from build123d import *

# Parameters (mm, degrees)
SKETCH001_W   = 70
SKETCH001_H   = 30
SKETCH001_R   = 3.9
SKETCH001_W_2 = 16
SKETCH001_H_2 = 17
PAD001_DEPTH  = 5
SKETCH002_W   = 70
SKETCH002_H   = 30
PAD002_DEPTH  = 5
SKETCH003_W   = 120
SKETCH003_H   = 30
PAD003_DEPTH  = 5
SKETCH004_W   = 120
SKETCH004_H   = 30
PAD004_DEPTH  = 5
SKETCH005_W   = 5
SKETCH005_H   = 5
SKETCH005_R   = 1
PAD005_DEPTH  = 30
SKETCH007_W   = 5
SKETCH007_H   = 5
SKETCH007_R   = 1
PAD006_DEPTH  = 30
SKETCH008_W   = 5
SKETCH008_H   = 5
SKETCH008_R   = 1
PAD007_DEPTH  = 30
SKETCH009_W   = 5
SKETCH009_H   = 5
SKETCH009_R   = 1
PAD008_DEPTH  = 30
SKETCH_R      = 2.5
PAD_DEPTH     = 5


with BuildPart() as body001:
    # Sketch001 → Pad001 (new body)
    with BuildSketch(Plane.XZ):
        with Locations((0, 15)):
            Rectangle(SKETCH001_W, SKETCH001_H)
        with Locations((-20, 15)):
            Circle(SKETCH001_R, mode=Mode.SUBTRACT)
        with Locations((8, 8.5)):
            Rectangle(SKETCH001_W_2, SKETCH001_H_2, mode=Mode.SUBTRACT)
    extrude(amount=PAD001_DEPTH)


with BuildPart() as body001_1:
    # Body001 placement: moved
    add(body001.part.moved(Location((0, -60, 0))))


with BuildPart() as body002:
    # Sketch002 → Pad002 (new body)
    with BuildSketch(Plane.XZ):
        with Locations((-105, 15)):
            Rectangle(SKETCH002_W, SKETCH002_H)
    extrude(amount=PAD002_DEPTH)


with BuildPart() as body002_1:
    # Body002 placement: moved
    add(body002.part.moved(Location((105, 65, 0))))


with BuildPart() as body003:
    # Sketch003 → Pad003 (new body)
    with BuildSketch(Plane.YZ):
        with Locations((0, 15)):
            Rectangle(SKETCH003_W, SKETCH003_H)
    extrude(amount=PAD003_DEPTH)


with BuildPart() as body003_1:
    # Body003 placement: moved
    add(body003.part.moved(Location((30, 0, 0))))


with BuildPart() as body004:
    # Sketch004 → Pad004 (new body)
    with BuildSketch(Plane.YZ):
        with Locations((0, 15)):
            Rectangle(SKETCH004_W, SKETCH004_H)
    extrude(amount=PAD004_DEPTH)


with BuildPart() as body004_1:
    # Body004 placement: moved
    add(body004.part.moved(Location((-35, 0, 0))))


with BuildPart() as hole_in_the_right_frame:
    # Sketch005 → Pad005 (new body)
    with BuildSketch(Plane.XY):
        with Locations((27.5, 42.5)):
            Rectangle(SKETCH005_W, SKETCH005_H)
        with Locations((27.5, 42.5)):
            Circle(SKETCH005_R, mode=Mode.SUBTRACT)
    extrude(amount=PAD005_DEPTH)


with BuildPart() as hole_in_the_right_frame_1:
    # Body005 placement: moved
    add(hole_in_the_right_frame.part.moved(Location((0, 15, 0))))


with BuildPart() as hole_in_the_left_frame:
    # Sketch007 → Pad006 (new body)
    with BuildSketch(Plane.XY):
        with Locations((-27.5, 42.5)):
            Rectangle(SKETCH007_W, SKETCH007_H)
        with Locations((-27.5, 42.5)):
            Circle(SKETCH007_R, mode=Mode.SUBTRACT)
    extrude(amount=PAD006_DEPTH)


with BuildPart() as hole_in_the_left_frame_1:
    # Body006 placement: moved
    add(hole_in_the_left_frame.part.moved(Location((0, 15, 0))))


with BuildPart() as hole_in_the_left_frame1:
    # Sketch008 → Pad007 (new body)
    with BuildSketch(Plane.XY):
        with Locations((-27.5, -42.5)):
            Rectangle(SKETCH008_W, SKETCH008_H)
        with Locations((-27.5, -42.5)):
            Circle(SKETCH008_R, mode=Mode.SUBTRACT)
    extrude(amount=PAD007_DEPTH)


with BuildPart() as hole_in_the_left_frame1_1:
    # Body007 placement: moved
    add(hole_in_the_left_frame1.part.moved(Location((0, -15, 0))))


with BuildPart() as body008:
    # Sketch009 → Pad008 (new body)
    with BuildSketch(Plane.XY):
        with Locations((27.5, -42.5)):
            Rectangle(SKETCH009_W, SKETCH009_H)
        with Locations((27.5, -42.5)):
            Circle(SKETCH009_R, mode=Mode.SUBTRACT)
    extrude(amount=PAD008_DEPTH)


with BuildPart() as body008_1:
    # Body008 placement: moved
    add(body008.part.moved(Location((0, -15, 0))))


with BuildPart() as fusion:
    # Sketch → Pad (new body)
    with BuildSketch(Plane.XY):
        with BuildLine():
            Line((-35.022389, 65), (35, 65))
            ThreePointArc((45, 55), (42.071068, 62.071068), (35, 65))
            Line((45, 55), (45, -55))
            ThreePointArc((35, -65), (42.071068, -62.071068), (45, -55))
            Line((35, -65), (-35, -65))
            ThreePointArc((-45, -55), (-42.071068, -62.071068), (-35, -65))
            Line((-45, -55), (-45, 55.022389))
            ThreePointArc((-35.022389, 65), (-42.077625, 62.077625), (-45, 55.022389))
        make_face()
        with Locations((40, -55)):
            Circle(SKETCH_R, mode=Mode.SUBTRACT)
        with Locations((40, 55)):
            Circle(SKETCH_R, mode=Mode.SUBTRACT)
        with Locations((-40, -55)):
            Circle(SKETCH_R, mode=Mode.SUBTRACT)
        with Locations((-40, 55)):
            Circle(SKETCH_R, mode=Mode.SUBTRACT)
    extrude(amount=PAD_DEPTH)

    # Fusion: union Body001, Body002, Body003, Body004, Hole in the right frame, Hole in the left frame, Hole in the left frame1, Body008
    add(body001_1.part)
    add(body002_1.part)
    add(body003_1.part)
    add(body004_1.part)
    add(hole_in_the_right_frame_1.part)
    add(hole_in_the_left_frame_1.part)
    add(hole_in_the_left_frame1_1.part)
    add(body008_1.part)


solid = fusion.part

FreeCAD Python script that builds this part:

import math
import FreeCAD as App
import Part
import Sketcher
from FreeCAD import Vector
Q = App.Units.Quantity

doc = App.newDocument("Part")
body = doc.addObject("PartDesign::Body", "Body")

# Sketch on XZ plane
sketch1 = doc.addObject("Sketcher::SketchObject", "Sketch")
body.addObject(sketch1)
sketch1.AttachmentSupport = (doc.XZ_Plane, [""])
sketch1.MapMode = "FlatFace"
sketch1.addGeometry([
    Part.LineSegment(Vector(-35, 30, 0), Vector(-35, 0, 0)),  # 0
    Part.LineSegment(Vector(-35, 0, 0), Vector(0, 0, 0)),  # 1
    Part.LineSegment(Vector(0, 0, 0), Vector(0, 17, 0)),  # 2
    Part.LineSegment(Vector(0, 17, 0), Vector(16, 17, 0)),  # 3
    Part.LineSegment(Vector(16, 17, 0), Vector(16, 0, 0)),  # 4
    Part.LineSegment(Vector(16, 0, 0), Vector(35, 0, 0)),  # 5
    Part.LineSegment(Vector(35, 0, 0), Vector(35, 30, 0)),  # 6
    Part.LineSegment(Vector(35, 30, 0), Vector(-35, 30, 0)),  # 7
    Part.Circle(Vector(-20, 15, 0), Vector(0, 0, 1), 3.9),  # 8
], False)
sketch1.addConstraint([
    Sketcher.Constraint("Coincident", 0, 2, 1, 1),
    Sketcher.Constraint("Coincident", 1, 2, 2, 1),
    Sketcher.Constraint("Coincident", 2, 2, 3, 1),
    Sketcher.Constraint("Coincident", 3, 2, 4, 1),
    Sketcher.Constraint("Coincident", 4, 2, 5, 1),
    Sketcher.Constraint("Coincident", 5, 2, 6, 1),
    Sketcher.Constraint("Coincident", 6, 2, 7, 1),
    Sketcher.Constraint("Coincident", 7, 2, 0, 1),
    Sketcher.Constraint("Vertical", 0),
    Sketcher.Constraint("Horizontal", 1),
    Sketcher.Constraint("Vertical", 2),
    Sketcher.Constraint("Horizontal", 3),
    Sketcher.Constraint("Vertical", 4),
    Sketcher.Constraint("Horizontal", 5),
    Sketcher.Constraint("Vertical", 6),
    Sketcher.Constraint("Horizontal", 7),
    Sketcher.Constraint("Coincident", 1, 2, -1, 1),
    Sketcher.Constraint("Symmetric", 0, 2, 5, 2, -1, 1),
    Sketcher.Constraint("Diameter", 8, Q("7.8 mm")),
    Sketcher.Constraint("DistanceX", 1, 1, 1, 2, Q("35 mm")),
    Sketcher.Constraint("DistanceX", 3, 1, 3, 2, Q("16 mm")),
    Sketcher.Constraint("DistanceY", 0, 2, 0, 1, Q("30 mm")),
    Sketcher.Constraint("DistanceY", 2, 1, 2, 2, Q("17 mm")),
    Sketcher.Constraint("DistanceX", 8, 3, -1, 1, Q("20 mm")),
    Sketcher.Constraint("DistanceY", -1, 1, 8, 3, Q("15 mm")),
])
pad1 = doc.addObject("PartDesign::Pad", "Pad")
body.addObject(pad1)
pad1.Profile = sketch1
pad1.Length = 5
body2 = doc.addObject("PartDesign::Body", "Body001")
doc.recompute()

body.Placement = App.Placement(Vector(0, -60, 0), App.Rotation(Vector(0, 0, 1), 0))
boolean = doc.addObject("PartDesign::Boolean", "Boolean")
body2.addObject(boolean)
boolean.Type = "Fuse"
boolean.addObjects([body])
body3 = doc.addObject("PartDesign::Body", "Body002")

# Sketch on XZ plane
sketch2 = doc.addObject("Sketcher::SketchObject", "Sketch001")
body3.addObject(sketch2)
sketch2.AttachmentSupport = (doc.getObject("XZ_Plane002"), [""])
sketch2.MapMode = "FlatFace"
sketch2.addGeometry([
    Part.LineSegment(Vector(-140, 30, 0), Vector(-140, 0, 0)),
    Part.LineSegment(Vector(-140, 0, 0), Vector(-70, 0, 0)),
    Part.LineSegment(Vector(-70, 0, 0), Vector(-70, 30, 0)),
    Part.LineSegment(Vector(-70, 30, 0), Vector(-140, 30, 0)),
], False)
sketch2.addConstraint([
    Sketcher.Constraint("Coincident", 0, 2, 1, 1),
    Sketcher.Constraint("Coincident", 1, 2, 2, 1),
    Sketcher.Constraint("Coincident", 2, 2, 3, 1),
    Sketcher.Constraint("Coincident", 3, 2, 0, 1),
    Sketcher.Constraint("Vertical", 0),
    Sketcher.Constraint("Horizontal", 1),
    Sketcher.Constraint("Vertical", 2),
    Sketcher.Constraint("Horizontal", 3),
    Sketcher.Constraint("PointOnObject", 0, 2, -1),
    Sketcher.Constraint("DistanceX", 1, 1, 1, 2, Q("70 mm")),
    Sketcher.Constraint("DistanceY", 0, 2, 0, 1, Q("30 mm")),
    Sketcher.Constraint("DistanceX", 0, 2, -1, 1, Q("140 mm")),
])
pad2 = doc.addObject("PartDesign::Pad", "Pad001")
body3.addObject(pad2)
pad2.Profile = sketch2
pad2.Length = 5
body4 = doc.addObject("PartDesign::Body", "Body003")
doc.recompute()

body3.Placement = App.Placement(Vector(105, 65, 0), App.Rotation(Vector(0, 0, 1), 0))
boolean2 = doc.addObject("PartDesign::Boolean", "Boolean001")
body4.addObject(boolean2)
boolean2.Type = "Fuse"
boolean2.addObjects([body3])
body5 = doc.addObject("PartDesign::Body", "Body004")

# Sketch on YZ plane
sketch3 = doc.addObject("Sketcher::SketchObject", "Sketch002")
body5.addObject(sketch3)
sketch3.AttachmentSupport = (doc.getObject("YZ_Plane004"), [""])
sketch3.MapMode = "FlatFace"
sketch3.addGeometry([
    Part.LineSegment(Vector(-60, 30, 0), Vector(-60, 0, 0)),
    Part.LineSegment(Vector(-60, 0, 0), Vector(60, 0, 0)),
    Part.LineSegment(Vector(60, 0, 0), Vector(60, 30, 0)),
    Part.LineSegment(Vector(60, 30, 0), Vector(-60, 30, 0)),
], False)
sketch3.addConstraint([
    Sketcher.Constraint("Coincident", 0, 2, 1, 1),
    Sketcher.Constraint("Coincident", 1, 2, 2, 1),
    Sketcher.Constraint("Coincident", 2, 2, 3, 1),
    Sketcher.Constraint("Coincident", 3, 2, 0, 1),
    Sketcher.Constraint("Vertical", 0),
    Sketcher.Constraint("Horizontal", 1),
    Sketcher.Constraint("Vertical", 2),
    Sketcher.Constraint("Horizontal", 3),
    Sketcher.Constraint("Symmetric", 0, 2, 1, 2, -1, 1),
    Sketcher.Constraint("DistanceX", 1, 1, 1, 2, Q("120 mm")),
    Sketcher.Constraint("DistanceY", 0, 2, 0, 1, Q("30 mm")),
])
pad3 = doc.addObject("PartDesign::Pad", "Pad002")
body5.addObject(pad3)
pad3.Profile = sketch3
pad3.Length = 5
body6 = doc.addObject("PartDesign::Body", "Body005")
doc.recompute()

body5.Placement = App.Placement(Vector(30, 0, 0), App.Rotation(Vector(0, 0, 1), 0))
boolean3 = doc.addObject("PartDesign::Boolean", "Boolean002")
body6.addObject(boolean3)
boolean3.Type = "Fuse"
boolean3.addObjects([body5])
body7 = doc.addObject("PartDesign::Body", "Body006")

# Sketch on YZ plane
sketch4 = doc.addObject("Sketcher::SketchObject", "Sketch003")
body7.addObject(sketch4)
sketch4.AttachmentSupport = (doc.getObject("YZ_Plane006"), [""])
sketch4.MapMode = "FlatFace"
sketch4.addGeometry([
    Part.LineSegment(Vector(-60, 30, 0), Vector(-60, 0, 0)),
    Part.LineSegment(Vector(-60, 0, 0), Vector(60, 0, 0)),
    Part.LineSegment(Vector(60, 0, 0), Vector(60, 30, 0)),
    Part.LineSegment(Vector(60, 30, 0), Vector(-60, 30, 0)),
], False)
sketch4.addConstraint([
    Sketcher.Constraint("Coincident", 0, 2, 1, 1),
    Sketcher.Constraint("Coincident", 1, 2, 2, 1),
    Sketcher.Constraint("Coincident", 2, 2, 3, 1),
    Sketcher.Constraint("Coincident", 3, 2, 0, 1),
    Sketcher.Constraint("Vertical", 0),
    Sketcher.Constraint("Horizontal", 1),
    Sketcher.Constraint("Vertical", 2),
    Sketcher.Constraint("Horizontal", 3),
    Sketcher.Constraint("Symmetric", 0, 2, 1, 2, -1, 1),
    Sketcher.Constraint("DistanceX", 1, 1, 1, 2, Q("120 mm")),
    Sketcher.Constraint("DistanceY", 0, 2, 0, 1, Q("30 mm")),
])
pad4 = doc.addObject("PartDesign::Pad", "Pad003")
body7.addObject(pad4)
pad4.Profile = sketch4
pad4.Length = 5
body8 = doc.addObject("PartDesign::Body", "Body007")
doc.recompute()

body7.Placement = App.Placement(Vector(-35, 0, 0), App.Rotation(Vector(0, 0, 1), 0))
boolean4 = doc.addObject("PartDesign::Boolean", "Boolean003")
body8.addObject(boolean4)
boolean4.Type = "Fuse"
boolean4.addObjects([body7])
body9 = doc.addObject("PartDesign::Body", "Body008")

# Sketch on XY plane
sketch5 = doc.addObject("Sketcher::SketchObject", "Sketch004")
body9.addObject(sketch5)
sketch5.AttachmentSupport = (doc.getObject("XY_Plane008"), [""])
sketch5.MapMode = "FlatFace"
sketch5.addGeometry([
    Part.LineSegment(Vector(25, 45, 0), Vector(25, 40, 0)),  # 0
    Part.LineSegment(Vector(25, 40, 0), Vector(30, 40, 0)),  # 1
    Part.LineSegment(Vector(30, 40, 0), Vector(30, 45, 0)),  # 2
    Part.LineSegment(Vector(30, 45, 0), Vector(25, 45, 0)),  # 3
    Part.Circle(Vector(27.5, 42.5, 0), Vector(0, 0, 1), 1),  # 4
], False)
sketch5.addConstraint([
    Sketcher.Constraint("Coincident", 0, 2, 1, 1),
    Sketcher.Constraint("Coincident", 1, 2, 2, 1),
    Sketcher.Constraint("Coincident", 2, 2, 3, 1),
    Sketcher.Constraint("Coincident", 3, 2, 0, 1),
    Sketcher.Constraint("Vertical", 0),
    Sketcher.Constraint("Horizontal", 1),
    Sketcher.Constraint("Vertical", 2),
    Sketcher.Constraint("Horizontal", 3),
    Sketcher.Constraint("Equal", 3, 0),
    Sketcher.Constraint("Diameter", 4, Q("2 mm")),
    Sketcher.Constraint("DistanceX", 1, 1, 1, 2, Q("5 mm")),
    Sketcher.Constraint("DistanceX", -1, 1, 0, 2, Q("25 mm")),
    Sketcher.Constraint("DistanceY", -1, 1, 0, 2, Q("40 mm")),
    Sketcher.Constraint("DistanceX", -1, 1, 4, 3, Q("27.5 mm")),
    Sketcher.Constraint("DistanceY", -1, 1, 4, 3, Q("42.5 mm")),
])
pad5 = doc.addObject("PartDesign::Pad", "Pad004")
body9.addObject(pad5)
pad5.Profile = sketch5
pad5.Length = 30
body10 = doc.addObject("PartDesign::Body", "Body009")
doc.recompute()

body9.Placement = App.Placement(Vector(0, 15, 0), App.Rotation(Vector(0, 0, 1), 0))
boolean5 = doc.addObject("PartDesign::Boolean", "Boolean004")
body10.addObject(boolean5)
boolean5.Type = "Fuse"
boolean5.addObjects([body9])
body11 = doc.addObject("PartDesign::Body", "Body010")

# Sketch on XY plane
sketch6 = doc.addObject("Sketcher::SketchObject", "Sketch005")
body11.addObject(sketch6)
sketch6.AttachmentSupport = (doc.getObject("XY_Plane010"), [""])
sketch6.MapMode = "FlatFace"
sketch6.addGeometry([
    Part.LineSegment(Vector(-30, 45, 0), Vector(-30, 40, 0)),  # 0
    Part.LineSegment(Vector(-30, 40, 0), Vector(-25, 40, 0)),  # 1
    Part.LineSegment(Vector(-25, 40, 0), Vector(-25, 45, 0)),  # 2
    Part.LineSegment(Vector(-25, 45, 0), Vector(-30, 45, 0)),  # 3
    Part.Circle(Vector(-27.5, 42.5, 0), Vector(0, 0, 1), 1),  # 4
], False)
sketch6.addConstraint([
    Sketcher.Constraint("Coincident", 0, 2, 1, 1),
    Sketcher.Constraint("Coincident", 1, 2, 2, 1),
    Sketcher.Constraint("Coincident", 2, 2, 3, 1),
    Sketcher.Constraint("Coincident", 3, 2, 0, 1),
    Sketcher.Constraint("Vertical", 0),
    Sketcher.Constraint("Horizontal", 1),
    Sketcher.Constraint("Vertical", 2),
    Sketcher.Constraint("Horizontal", 3),
    Sketcher.Constraint("Equal", 3, 0),
    Sketcher.Constraint("Diameter", 4, Q("2 mm")),
    Sketcher.Constraint("DistanceX", 1, 1, 1, 2, Q("5 mm")),
    Sketcher.Constraint("DistanceX", 0, 2, -1, 1, Q("30 mm")),
    Sketcher.Constraint("DistanceY", -1, 1, 0, 2, Q("40 mm")),
    Sketcher.Constraint("DistanceX", 4, 3, -1, 1, Q("27.5 mm")),
    Sketcher.Constraint("DistanceY", -1, 1, 4, 3, Q("42.5 mm")),
])
pad6 = doc.addObject("PartDesign::Pad", "Pad005")
body11.addObject(pad6)
pad6.Profile = sketch6
pad6.Length = 30
body12 = doc.addObject("PartDesign::Body", "Body011")
doc.recompute()

body11.Placement = App.Placement(Vector(0, 15, 0), App.Rotation(Vector(0, 0, 1), 0))
boolean6 = doc.addObject("PartDesign::Boolean", "Boolean005")
body12.addObject(boolean6)
boolean6.Type = "Fuse"
boolean6.addObjects([body11])
body13 = doc.addObject("PartDesign::Body", "Body012")

# Sketch on XY plane
sketch7 = doc.addObject("Sketcher::SketchObject", "Sketch006")
body13.addObject(sketch7)
sketch7.AttachmentSupport = (doc.getObject("XY_Plane012"), [""])
sketch7.MapMode = "FlatFace"
sketch7.addGeometry([
    Part.LineSegment(Vector(-30, -40, 0), Vector(-30, -45, 0)),  # 0
    Part.LineSegment(Vector(-30, -45, 0), Vector(-25, -45, 0)),  # 1
    Part.LineSegment(Vector(-25, -45, 0), Vector(-25, -40, 0)),  # 2
    Part.LineSegment(Vector(-25, -40, 0), Vector(-30, -40, 0)),  # 3
    Part.Circle(Vector(-27.5, -42.5, 0), Vector(0, 0, 1), 1),  # 4
], False)
sketch7.addConstraint([
    Sketcher.Constraint("Coincident", 0, 2, 1, 1),
    Sketcher.Constraint("Coincident", 1, 2, 2, 1),
    Sketcher.Constraint("Coincident", 2, 2, 3, 1),
    Sketcher.Constraint("Coincident", 3, 2, 0, 1),
    Sketcher.Constraint("Vertical", 0),
    Sketcher.Constraint("Horizontal", 1),
    Sketcher.Constraint("Vertical", 2),
    Sketcher.Constraint("Horizontal", 3),
    Sketcher.Constraint("Equal", 3, 0),
    Sketcher.Constraint("Diameter", 4, Q("2 mm")),
    Sketcher.Constraint("DistanceX", 1, 1, 1, 2, Q("5 mm")),
    Sketcher.Constraint("DistanceX", 0, 2, -1, 1, Q("30 mm")),
    Sketcher.Constraint("DistanceY", 0, 2, -1, 1, Q("45 mm")),
    Sketcher.Constraint("DistanceX", 4, 3, -1, 1, Q("27.5 mm")),
    Sketcher.Constraint("DistanceY", 4, 3, -1, 1, Q("42.5 mm")),
])
pad7 = doc.addObject("PartDesign::Pad", "Pad006")
body13.addObject(pad7)
pad7.Profile = sketch7
pad7.Length = 30
body14 = doc.addObject("PartDesign::Body", "Body013")
doc.recompute()

body13.Placement = App.Placement(Vector(0, -15, 0), App.Rotation(Vector(0, 0, 1), 0))
boolean7 = doc.addObject("PartDesign::Boolean", "Boolean006")
body14.addObject(boolean7)
boolean7.Type = "Fuse"
boolean7.addObjects([body13])
body15 = doc.addObject("PartDesign::Body", "Body014")

# Sketch on XY plane
sketch8 = doc.addObject("Sketcher::SketchObject", "Sketch007")
body15.addObject(sketch8)
sketch8.AttachmentSupport = (doc.getObject("XY_Plane014"), [""])
sketch8.MapMode = "FlatFace"
sketch8.addGeometry([
    Part.LineSegment(Vector(25, -40, 0), Vector(25, -45, 0)),  # 0
    Part.LineSegment(Vector(25, -45, 0), Vector(30, -45, 0)),  # 1
    Part.LineSegment(Vector(30, -45, 0), Vector(30, -40, 0)),  # 2
    Part.LineSegment(Vector(30, -40, 0), Vector(25, -40, 0)),  # 3
    Part.Circle(Vector(27.5, -42.5, 0), Vector(0, 0, 1), 1),  # 4
], False)
sketch8.addConstraint([
    Sketcher.Constraint("Coincident", 0, 2, 1, 1),
    Sketcher.Constraint("Coincident", 1, 2, 2, 1),
    Sketcher.Constraint("Coincident", 2, 2, 3, 1),
    Sketcher.Constraint("Coincident", 3, 2, 0, 1),
    Sketcher.Constraint("Vertical", 0),
    Sketcher.Constraint("Horizontal", 1),
    Sketcher.Constraint("Vertical", 2),
    Sketcher.Constraint("Horizontal", 3),
    Sketcher.Constraint("Equal", 3, 0),
    Sketcher.Constraint("Diameter", 4, Q("2 mm")),
    Sketcher.Constraint("DistanceX", 1, 1, 1, 2, Q("5 mm")),
    Sketcher.Constraint("DistanceX", -1, 1, 0, 2, Q("25 mm")),
    Sketcher.Constraint("DistanceY", 0, 2, -1, 1, Q("45 mm")),
    Sketcher.Constraint("DistanceX", -1, 1, 4, 3, Q("27.5 mm")),
    Sketcher.Constraint("DistanceY", 4, 3, -1, 1, Q("42.5 mm")),
])
pad8 = doc.addObject("PartDesign::Pad", "Pad007")
body15.addObject(pad8)
pad8.Profile = sketch8
pad8.Length = 30
body16 = doc.addObject("PartDesign::Body", "Body015")
doc.recompute()

body15.Placement = App.Placement(Vector(0, -15, 0), App.Rotation(Vector(0, 0, 1), 0))
boolean8 = doc.addObject("PartDesign::Boolean", "Boolean007")
body16.addObject(boolean8)
boolean8.Type = "Fuse"
boolean8.addObjects([body15])
body17 = doc.addObject("PartDesign::Body", "Body016")

# Sketch on XY plane
sketch9 = doc.addObject("Sketcher::SketchObject", "Sketch008")
body17.addObject(sketch9)
sketch9.AttachmentSupport = (doc.getObject("XY_Plane016"), [""])
sketch9.MapMode = "FlatFace"
sketch9.addGeometry([
    Part.LineSegment(Vector(35, 65, 0), Vector(-35, 65, 0)),  # 0
    Part.ArcOfCircle(Part.Circle(Vector(-35, 55, 0), Vector(0, 0, 1), 10), math.radians(90), math.radians(180)),  # 1
    Part.LineSegment(Vector(-45, 55, 0), Vector(-45, -55, 0)),  # 2
    Part.ArcOfCircle(Part.Circle(Vector(-35, -55, 0), Vector(0, 0, 1), 10), math.radians(180), math.radians(270)),  # 3
    Part.LineSegment(Vector(-35, -65, 0), Vector(35, -65, 0)),  # 4
    Part.ArcOfCircle(Part.Circle(Vector(35, -55, 0), Vector(0, 0, 1), 10), math.radians(-90), math.radians(0)),  # 5
    Part.LineSegment(Vector(45, -55, 0), Vector(45, 55, 0)),  # 6
    Part.ArcOfCircle(Part.Circle(Vector(35, 55, 0), Vector(0, 0, 1), 10), math.radians(0), math.radians(90)),  # 7
    Part.Circle(Vector(40, -55, 0), Vector(0, 0, 1), 2.5),  # 8
    Part.Circle(Vector(-40, -55, 0), Vector(0, 0, 1), 2.5),  # 9
    Part.Circle(Vector(40, 55, 0), Vector(0, 0, 1), 2.5),  # 10
    Part.Circle(Vector(-40, 55, 0), Vector(0, 0, 1), 2.5),  # 11
], False)
sketch9.addConstraint([
    Sketcher.Constraint("Tangent", 0, 2, 1, 1),
    Sketcher.Constraint("Tangent", 1, 2, 2, 1),
    Sketcher.Constraint("Tangent", 2, 2, 3, 1),
    Sketcher.Constraint("Tangent", 3, 2, 4, 1),
    Sketcher.Constraint("Tangent", 4, 2, 5, 1),
    Sketcher.Constraint("Tangent", 5, 2, 6, 1),
    Sketcher.Constraint("Tangent", 6, 2, 7, 1),
    Sketcher.Constraint("Tangent", 7, 2, 0, 1),
    Sketcher.Constraint("Horizontal", 0),
    Sketcher.Constraint("Vertical", 2),
    Sketcher.Constraint("Horizontal", 4),
    Sketcher.Constraint("Vertical", 6),
    Sketcher.Constraint("Equal", 3, 5),
    Sketcher.Constraint("Equal", 5, 7),
    Sketcher.Constraint("Equal", 8, 9),
    Sketcher.Constraint("Equal", 9, 10),
    Sketcher.Constraint("Equal", 10, 11),
    Sketcher.Constraint("Symmetric", 3, 3, 7, 3, -1, 1),
    Sketcher.Constraint("Symmetric", 9, 3, 10, 3, -1, 1),
    Sketcher.Constraint("Symmetric", 8, 3, 11, 3, -1, 1),
    Sketcher.Constraint("Symmetric", 8, 3, 9, 3, -2),
    Sketcher.Constraint("Horizontal", 5, 3, 8, 3),
    Sketcher.Constraint("Diameter", 8, Q("5 mm")),
    Sketcher.Constraint("Radius", 3, Q("9.999999 mm")),
    Sketcher.Constraint("DistanceX", 4, 1, 4, 2, Q("70 mm")),
    Sketcher.Constraint("DistanceY", 6, 1, 6, 2, Q("110 mm")),
    Sketcher.Constraint("DistanceX", -1, 1, 8, 3, Q("40 mm")),
    Sketcher.Constraint("Radius", 1, Q("9.977612 mm")),
])
pad9 = doc.addObject("PartDesign::Pad", "Pad008")
body17.addObject(pad9)
pad9.Profile = sketch9
pad9.Length = 5
doc.recompute()

boolean9 = doc.addObject("PartDesign::Boolean", "Boolean008")
body17.addObject(boolean9)
boolean9.Type = "Fuse"
boolean9.addObjects([body2])
doc.recompute()

boolean10 = doc.addObject("PartDesign::Boolean", "Boolean009")
body17.addObject(boolean10)
boolean10.Type = "Fuse"
boolean10.addObjects([body4])
doc.recompute()

boolean11 = doc.addObject("PartDesign::Boolean", "Boolean010")
body17.addObject(boolean11)
boolean11.Type = "Fuse"
boolean11.addObjects([body6])
doc.recompute()

boolean12 = doc.addObject("PartDesign::Boolean", "Boolean011")
body17.addObject(boolean12)
boolean12.Type = "Fuse"
boolean12.addObjects([body8])
doc.recompute()

boolean13 = doc.addObject("PartDesign::Boolean", "Boolean012")
body17.addObject(boolean13)
boolean13.Type = "Fuse"
boolean13.addObjects([body10])
doc.recompute()

boolean14 = doc.addObject("PartDesign::Boolean", "Boolean013")
body17.addObject(boolean14)
boolean14.Type = "Fuse"
boolean14.addObjects([body12])
doc.recompute()

boolean15 = doc.addObject("PartDesign::Boolean", "Boolean014")
body17.addObject(boolean15)
boolean15.Type = "Fuse"
boolean15.addObjects([body14])
doc.recompute()

boolean16 = doc.addObject("PartDesign::Boolean", "Boolean015")
body17.addObject(boolean16)
boolean16.Type = "Fuse"
boolean16.addObjects([body16])

doc.recompute()
